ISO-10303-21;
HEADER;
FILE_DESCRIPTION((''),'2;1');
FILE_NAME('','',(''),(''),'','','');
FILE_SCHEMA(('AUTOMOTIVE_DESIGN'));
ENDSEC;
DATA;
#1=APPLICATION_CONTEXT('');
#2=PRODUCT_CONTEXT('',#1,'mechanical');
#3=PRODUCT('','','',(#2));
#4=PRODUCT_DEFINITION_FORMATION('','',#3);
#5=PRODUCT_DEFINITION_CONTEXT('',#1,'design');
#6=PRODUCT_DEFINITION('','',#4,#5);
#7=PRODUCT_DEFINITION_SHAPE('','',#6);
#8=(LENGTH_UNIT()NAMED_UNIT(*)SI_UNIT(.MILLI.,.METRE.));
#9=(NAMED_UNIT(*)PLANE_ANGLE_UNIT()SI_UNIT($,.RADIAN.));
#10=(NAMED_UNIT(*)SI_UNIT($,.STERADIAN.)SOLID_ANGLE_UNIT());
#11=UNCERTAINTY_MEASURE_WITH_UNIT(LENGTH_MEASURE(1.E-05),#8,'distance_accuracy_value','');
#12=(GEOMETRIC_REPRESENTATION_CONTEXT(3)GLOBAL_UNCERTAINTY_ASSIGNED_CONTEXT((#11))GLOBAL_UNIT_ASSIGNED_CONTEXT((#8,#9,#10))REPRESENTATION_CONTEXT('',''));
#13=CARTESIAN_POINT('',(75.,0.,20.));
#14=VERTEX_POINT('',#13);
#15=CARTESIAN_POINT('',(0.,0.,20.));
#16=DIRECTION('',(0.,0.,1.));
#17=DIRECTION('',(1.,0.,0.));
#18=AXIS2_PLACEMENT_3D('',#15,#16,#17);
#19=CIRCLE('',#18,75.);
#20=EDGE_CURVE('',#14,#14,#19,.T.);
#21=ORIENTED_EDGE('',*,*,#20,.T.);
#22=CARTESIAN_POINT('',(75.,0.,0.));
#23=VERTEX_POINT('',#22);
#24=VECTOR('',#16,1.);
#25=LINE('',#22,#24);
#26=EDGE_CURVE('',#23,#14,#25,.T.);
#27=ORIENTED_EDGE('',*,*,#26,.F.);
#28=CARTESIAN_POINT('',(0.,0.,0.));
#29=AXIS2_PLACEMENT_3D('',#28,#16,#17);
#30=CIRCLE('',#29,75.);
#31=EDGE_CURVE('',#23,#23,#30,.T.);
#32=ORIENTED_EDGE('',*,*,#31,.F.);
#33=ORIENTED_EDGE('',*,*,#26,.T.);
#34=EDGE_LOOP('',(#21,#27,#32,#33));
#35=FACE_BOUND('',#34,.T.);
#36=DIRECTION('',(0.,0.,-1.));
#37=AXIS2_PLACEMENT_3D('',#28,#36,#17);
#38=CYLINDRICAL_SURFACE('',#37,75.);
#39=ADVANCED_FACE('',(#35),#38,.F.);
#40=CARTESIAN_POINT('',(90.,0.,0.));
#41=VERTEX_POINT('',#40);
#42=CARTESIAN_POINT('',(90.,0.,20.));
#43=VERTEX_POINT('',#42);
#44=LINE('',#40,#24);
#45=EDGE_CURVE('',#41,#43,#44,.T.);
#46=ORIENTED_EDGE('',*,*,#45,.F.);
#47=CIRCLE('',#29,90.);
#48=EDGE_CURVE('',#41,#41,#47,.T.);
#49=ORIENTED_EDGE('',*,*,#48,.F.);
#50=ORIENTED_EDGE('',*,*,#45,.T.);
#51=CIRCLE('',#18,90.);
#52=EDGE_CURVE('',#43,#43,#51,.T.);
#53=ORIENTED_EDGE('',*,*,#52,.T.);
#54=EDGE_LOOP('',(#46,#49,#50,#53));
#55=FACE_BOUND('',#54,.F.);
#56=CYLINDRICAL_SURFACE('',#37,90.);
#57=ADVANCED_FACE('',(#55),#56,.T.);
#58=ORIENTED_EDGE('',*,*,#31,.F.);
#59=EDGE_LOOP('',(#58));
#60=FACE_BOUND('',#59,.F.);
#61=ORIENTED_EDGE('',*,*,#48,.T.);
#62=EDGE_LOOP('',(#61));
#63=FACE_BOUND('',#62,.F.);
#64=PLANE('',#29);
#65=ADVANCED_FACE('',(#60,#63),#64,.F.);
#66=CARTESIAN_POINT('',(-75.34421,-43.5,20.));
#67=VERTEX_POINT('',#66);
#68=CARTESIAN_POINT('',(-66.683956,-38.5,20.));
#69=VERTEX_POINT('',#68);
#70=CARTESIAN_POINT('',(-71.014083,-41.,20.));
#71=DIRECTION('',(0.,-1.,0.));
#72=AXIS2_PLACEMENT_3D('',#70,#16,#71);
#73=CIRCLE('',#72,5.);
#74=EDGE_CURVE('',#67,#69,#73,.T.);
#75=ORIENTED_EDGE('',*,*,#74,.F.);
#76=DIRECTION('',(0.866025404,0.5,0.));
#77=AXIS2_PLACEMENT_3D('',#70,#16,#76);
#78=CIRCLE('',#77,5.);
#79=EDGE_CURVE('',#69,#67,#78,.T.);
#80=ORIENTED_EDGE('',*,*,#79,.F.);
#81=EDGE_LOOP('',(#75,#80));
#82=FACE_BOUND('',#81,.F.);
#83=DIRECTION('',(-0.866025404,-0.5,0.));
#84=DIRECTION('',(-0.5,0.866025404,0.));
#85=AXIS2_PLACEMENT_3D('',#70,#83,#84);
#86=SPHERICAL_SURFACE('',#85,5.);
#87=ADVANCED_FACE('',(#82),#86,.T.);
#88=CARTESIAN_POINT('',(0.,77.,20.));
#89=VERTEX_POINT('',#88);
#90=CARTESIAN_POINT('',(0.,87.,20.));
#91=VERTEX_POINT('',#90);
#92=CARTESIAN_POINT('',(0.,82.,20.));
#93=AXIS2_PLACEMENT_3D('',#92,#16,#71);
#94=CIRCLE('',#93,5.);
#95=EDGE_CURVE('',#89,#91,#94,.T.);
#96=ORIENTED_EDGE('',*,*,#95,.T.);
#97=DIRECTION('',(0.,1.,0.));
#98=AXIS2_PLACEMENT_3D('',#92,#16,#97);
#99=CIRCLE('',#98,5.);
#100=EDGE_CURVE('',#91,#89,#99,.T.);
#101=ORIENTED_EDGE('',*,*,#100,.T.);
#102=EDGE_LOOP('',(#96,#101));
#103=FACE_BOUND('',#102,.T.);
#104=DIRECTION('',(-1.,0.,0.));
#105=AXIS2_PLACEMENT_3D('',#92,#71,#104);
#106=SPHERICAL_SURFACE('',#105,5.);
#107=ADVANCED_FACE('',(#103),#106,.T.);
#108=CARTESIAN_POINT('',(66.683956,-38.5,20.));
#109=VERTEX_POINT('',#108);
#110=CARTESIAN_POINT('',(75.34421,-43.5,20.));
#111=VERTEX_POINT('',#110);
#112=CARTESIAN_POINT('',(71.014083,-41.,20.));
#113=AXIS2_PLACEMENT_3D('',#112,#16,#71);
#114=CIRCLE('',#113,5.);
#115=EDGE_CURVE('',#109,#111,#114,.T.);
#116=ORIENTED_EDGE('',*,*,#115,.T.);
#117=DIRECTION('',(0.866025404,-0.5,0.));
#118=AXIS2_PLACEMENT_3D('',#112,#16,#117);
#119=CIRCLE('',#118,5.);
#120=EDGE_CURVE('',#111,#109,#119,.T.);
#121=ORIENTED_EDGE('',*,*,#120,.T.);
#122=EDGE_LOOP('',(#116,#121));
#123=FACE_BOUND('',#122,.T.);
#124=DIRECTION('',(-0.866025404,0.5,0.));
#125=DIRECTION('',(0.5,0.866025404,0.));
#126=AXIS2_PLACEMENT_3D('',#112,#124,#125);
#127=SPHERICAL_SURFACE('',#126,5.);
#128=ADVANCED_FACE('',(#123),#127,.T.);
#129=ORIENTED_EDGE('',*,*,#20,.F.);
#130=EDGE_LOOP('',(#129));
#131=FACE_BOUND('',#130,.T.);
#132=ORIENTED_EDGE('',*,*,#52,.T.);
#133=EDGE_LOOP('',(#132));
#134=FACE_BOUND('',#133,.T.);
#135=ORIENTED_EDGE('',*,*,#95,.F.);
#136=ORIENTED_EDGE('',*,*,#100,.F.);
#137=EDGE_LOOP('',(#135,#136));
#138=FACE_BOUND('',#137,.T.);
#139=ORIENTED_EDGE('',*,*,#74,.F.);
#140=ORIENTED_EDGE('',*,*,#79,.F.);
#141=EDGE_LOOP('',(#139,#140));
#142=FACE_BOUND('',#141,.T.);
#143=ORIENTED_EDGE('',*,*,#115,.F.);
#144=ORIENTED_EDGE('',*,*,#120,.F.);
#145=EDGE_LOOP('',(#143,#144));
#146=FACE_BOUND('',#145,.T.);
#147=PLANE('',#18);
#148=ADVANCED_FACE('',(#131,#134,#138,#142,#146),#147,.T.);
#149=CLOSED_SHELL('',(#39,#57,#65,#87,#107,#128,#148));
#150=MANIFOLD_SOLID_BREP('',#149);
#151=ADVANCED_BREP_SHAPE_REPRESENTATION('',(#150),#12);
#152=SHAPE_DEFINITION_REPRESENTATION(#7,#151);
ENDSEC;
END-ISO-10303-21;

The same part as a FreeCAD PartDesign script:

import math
import FreeCAD as App
import Part
import Sketcher

V = App.Vector
Q = App.Units.Quantity

doc = App.newDocument("Part")
params = doc.addObject("Spreadsheet::Sheet", "Params")
for row, (alias, value) in enumerate([
    ("sketch1_diameter", "180 mm"),
    ("sketch1_diameter2", "150 mm"),
    ("pad1_length", "20 mm"),
    ("sketch2_radius", "5 mm"),
    ("revolution_angle", "360 deg"),
    ("sketch3_radius", "5 mm"),
    ("revolution2_angle", "360 deg"),
    ("sketch4_radius", "5 mm"),
    ("revolution3_angle", "360 deg"),
], start=1):
    params.set(f"A{row}", alias)
    params.set(f"B{row}", "=" + value)
    params.setAlias(f"B{row}", alias)

body = doc.addObject("PartDesign::Body", "Body")

sketch1 = body.newObject("Sketcher::SketchObject", "Sketch")
sketch1.AttachmentSupport = (doc.getObject("XY_Plane"), [""])
sketch1.MapMode = "FlatFace"
sketch1.addGeometry([
    Part.Circle(V(0, 0, 0), V(0, 0, 1), 90),
    Part.Circle(V(0, 0, 0), V(0, 0, 1), 75),
], False)
sketch1.addConstraint([
    Sketcher.Constraint("Coincident", 0, 3, -1, 1),
    Sketcher.Constraint("Coincident", 1, 3, -1, 1),
    Sketcher.Constraint("Diameter", 0, 180.0),
    Sketcher.Constraint("Diameter", 1, 150.0),
])
sketch1.setExpression("Constraints[2]", "Params.sketch1_diameter")
sketch1.setExpression("Constraints[3]", "Params.sketch1_diameter2")
pad1 = body.newObject("PartDesign::Pad", "Pad")
pad1.Profile = sketch1
pad1.setExpression("Length", "Params.pad1_length")

sketch2 = body.newObject("Sketcher::SketchObject", "Sketch001")
sketch2.AttachmentSupport = (doc.getObject("XY_Plane"), [""])
sketch2.MapMode = "FlatFace"
sketch2.AttachmentOffset = App.Placement(V(0, 0, 20), App.Rotation())
sketch2.addGeometry([
    Part.LineSegment(V(-75, -44, 0), V(-67, -38, 0)),
    Part.ArcOfCircle(Part.Circle(V(-71, -41, 0), V(0, 0, 1), 5), math.radians(30), math.radians(210)),
], False)
sketch2.addGeometry(Part.LineSegment(V(-75, -43, 0), V(-67, -38, 0)), True)
sketch2.addConstraint([
    Sketcher.Constraint("Coincident", 0, 1, 1, 2),
    Sketcher.Constraint("Coincident", 1, 1, 0, 2),
    Sketcher.Constraint("Coincident", 2, 1, 0, 1),
    Sketcher.Constraint("Coincident", 2, 2, 1, 1),
    Sketcher.Constraint("Radius", 1, 5.0),
    Sketcher.Constraint("Angle", 0, Q("30 deg")),
    Sketcher.Constraint("DistanceY", 1, 3, -1, 1, 41.0),
    Sketcher.Constraint("DistanceY", 0, 1, -1, 1, 43.5),
    Sketcher.Constraint("DistanceX", 0, 1, -1, 1, 75.34421),
])
sketch2.setExpression("Constraints[4]", "Params.sketch2_radius")
revolution = body.newObject("PartDesign::Revolution", "Revolution")
revolution.Profile = sketch2
revolution.ReferenceAxis = (sketch2, ["Axis0"])
revolution.setExpression("Angle", "Params.revolution_angle")

sketch3 = body.newObject("Sketcher::SketchObject", "Sketch002")
sketch3.AttachmentSupport = (doc.getObject("XY_Plane"), [""])
sketch3.MapMode = "FlatFace"
sketch3.AttachmentOffset = App.Placement(V(0, 0, 20), App.Rotation())
sketch3.addGeometry([
    Part.LineSegment(V(67, -38, 0), V(75, -44, 0)),
    Part.ArcOfCircle(Part.Circle(V(71, -41, 0), V(0, 0, 1), 5), math.radians(-30), math.radians(150)),
], False)
sketch3.addGeometry(Part.LineSegment(V(75, -43, 0), V(67, -38, 0)), True)
sketch3.addConstraint([
    Sketcher.Constraint("Coincident", 0, 1, 1, 2),
    Sketcher.Constraint("Coincident", 1, 1, 0, 2),
    Sketcher.Constraint("Coincident", 2, 1, 1, 1),
    Sketcher.Constraint("Coincident", 2, 2, 0, 1),
    Sketcher.Constraint("Radius", 1, 5.0),
    Sketcher.Constraint("Angle", 0, Q("-30 deg")),
    Sketcher.Constraint("DistanceY", 1, 3, -1, 1, 41.0),
    Sketcher.Constraint("DistanceY", 0, 1, -1, 1, 38.5),
    Sketcher.Constraint("DistanceX", -1, 1, 1, 1, 75.34421),
])
sketch3.setExpression("Constraints[4]", "Params.sketch3_radius")
revolution2 = body.newObject("PartDesign::Revolution", "Revolution001")
revolution2.Profile = sketch3
revolution2.ReferenceAxis = (sketch3, ["Axis0"])
revolution2.setExpression("Angle", "Params.revolution2_angle")

sketch4 = body.newObject("Sketcher::SketchObject", "Sketch003")
sketch4.AttachmentSupport = (doc.getObject("XY_Plane"), [""])
sketch4.MapMode = "FlatFace"
sketch4.AttachmentOffset = App.Placement(V(0, 0, 20), App.Rotation())
sketch4.addGeometry([
    Part.LineSegment(V(0, 77, 0), V(0, 87, 0)),
    Part.ArcOfCircle(Part.Circle(V(0, 82, 0), V(0, 0, 1), 5), math.radians(90), math.radians(270)),
], False)
sketch4.addConstraint([
    Sketcher.Constraint("Coincident", 0, 1, 1, 2),
    Sketcher.Constraint("Coincident", 1, 1, 0, 2),
    Sketcher.Constraint("Vertical", 0),
    Sketcher.Constraint("PointOnObject", 1, 3, -2),
    Sketcher.Constraint("PointOnObject", 0, 1, -2),
    Sketcher.Constraint("Radius", 1, 5.0),
    Sketcher.Constraint("DistanceY", -1, 1, 1, 3, 82.0),
])
sketch4.setExpression("Constraints[5]", "Params.sketch4_radius")
revolution3 = body.newObject("PartDesign::Revolution", "Revolution002")
revolution3.Profile = sketch4
revolution3.ReferenceAxis = (sketch4, ["V_Axis"])
revolution3.setExpression("Angle", "Params.revolution3_angle")

doc.recompute()
